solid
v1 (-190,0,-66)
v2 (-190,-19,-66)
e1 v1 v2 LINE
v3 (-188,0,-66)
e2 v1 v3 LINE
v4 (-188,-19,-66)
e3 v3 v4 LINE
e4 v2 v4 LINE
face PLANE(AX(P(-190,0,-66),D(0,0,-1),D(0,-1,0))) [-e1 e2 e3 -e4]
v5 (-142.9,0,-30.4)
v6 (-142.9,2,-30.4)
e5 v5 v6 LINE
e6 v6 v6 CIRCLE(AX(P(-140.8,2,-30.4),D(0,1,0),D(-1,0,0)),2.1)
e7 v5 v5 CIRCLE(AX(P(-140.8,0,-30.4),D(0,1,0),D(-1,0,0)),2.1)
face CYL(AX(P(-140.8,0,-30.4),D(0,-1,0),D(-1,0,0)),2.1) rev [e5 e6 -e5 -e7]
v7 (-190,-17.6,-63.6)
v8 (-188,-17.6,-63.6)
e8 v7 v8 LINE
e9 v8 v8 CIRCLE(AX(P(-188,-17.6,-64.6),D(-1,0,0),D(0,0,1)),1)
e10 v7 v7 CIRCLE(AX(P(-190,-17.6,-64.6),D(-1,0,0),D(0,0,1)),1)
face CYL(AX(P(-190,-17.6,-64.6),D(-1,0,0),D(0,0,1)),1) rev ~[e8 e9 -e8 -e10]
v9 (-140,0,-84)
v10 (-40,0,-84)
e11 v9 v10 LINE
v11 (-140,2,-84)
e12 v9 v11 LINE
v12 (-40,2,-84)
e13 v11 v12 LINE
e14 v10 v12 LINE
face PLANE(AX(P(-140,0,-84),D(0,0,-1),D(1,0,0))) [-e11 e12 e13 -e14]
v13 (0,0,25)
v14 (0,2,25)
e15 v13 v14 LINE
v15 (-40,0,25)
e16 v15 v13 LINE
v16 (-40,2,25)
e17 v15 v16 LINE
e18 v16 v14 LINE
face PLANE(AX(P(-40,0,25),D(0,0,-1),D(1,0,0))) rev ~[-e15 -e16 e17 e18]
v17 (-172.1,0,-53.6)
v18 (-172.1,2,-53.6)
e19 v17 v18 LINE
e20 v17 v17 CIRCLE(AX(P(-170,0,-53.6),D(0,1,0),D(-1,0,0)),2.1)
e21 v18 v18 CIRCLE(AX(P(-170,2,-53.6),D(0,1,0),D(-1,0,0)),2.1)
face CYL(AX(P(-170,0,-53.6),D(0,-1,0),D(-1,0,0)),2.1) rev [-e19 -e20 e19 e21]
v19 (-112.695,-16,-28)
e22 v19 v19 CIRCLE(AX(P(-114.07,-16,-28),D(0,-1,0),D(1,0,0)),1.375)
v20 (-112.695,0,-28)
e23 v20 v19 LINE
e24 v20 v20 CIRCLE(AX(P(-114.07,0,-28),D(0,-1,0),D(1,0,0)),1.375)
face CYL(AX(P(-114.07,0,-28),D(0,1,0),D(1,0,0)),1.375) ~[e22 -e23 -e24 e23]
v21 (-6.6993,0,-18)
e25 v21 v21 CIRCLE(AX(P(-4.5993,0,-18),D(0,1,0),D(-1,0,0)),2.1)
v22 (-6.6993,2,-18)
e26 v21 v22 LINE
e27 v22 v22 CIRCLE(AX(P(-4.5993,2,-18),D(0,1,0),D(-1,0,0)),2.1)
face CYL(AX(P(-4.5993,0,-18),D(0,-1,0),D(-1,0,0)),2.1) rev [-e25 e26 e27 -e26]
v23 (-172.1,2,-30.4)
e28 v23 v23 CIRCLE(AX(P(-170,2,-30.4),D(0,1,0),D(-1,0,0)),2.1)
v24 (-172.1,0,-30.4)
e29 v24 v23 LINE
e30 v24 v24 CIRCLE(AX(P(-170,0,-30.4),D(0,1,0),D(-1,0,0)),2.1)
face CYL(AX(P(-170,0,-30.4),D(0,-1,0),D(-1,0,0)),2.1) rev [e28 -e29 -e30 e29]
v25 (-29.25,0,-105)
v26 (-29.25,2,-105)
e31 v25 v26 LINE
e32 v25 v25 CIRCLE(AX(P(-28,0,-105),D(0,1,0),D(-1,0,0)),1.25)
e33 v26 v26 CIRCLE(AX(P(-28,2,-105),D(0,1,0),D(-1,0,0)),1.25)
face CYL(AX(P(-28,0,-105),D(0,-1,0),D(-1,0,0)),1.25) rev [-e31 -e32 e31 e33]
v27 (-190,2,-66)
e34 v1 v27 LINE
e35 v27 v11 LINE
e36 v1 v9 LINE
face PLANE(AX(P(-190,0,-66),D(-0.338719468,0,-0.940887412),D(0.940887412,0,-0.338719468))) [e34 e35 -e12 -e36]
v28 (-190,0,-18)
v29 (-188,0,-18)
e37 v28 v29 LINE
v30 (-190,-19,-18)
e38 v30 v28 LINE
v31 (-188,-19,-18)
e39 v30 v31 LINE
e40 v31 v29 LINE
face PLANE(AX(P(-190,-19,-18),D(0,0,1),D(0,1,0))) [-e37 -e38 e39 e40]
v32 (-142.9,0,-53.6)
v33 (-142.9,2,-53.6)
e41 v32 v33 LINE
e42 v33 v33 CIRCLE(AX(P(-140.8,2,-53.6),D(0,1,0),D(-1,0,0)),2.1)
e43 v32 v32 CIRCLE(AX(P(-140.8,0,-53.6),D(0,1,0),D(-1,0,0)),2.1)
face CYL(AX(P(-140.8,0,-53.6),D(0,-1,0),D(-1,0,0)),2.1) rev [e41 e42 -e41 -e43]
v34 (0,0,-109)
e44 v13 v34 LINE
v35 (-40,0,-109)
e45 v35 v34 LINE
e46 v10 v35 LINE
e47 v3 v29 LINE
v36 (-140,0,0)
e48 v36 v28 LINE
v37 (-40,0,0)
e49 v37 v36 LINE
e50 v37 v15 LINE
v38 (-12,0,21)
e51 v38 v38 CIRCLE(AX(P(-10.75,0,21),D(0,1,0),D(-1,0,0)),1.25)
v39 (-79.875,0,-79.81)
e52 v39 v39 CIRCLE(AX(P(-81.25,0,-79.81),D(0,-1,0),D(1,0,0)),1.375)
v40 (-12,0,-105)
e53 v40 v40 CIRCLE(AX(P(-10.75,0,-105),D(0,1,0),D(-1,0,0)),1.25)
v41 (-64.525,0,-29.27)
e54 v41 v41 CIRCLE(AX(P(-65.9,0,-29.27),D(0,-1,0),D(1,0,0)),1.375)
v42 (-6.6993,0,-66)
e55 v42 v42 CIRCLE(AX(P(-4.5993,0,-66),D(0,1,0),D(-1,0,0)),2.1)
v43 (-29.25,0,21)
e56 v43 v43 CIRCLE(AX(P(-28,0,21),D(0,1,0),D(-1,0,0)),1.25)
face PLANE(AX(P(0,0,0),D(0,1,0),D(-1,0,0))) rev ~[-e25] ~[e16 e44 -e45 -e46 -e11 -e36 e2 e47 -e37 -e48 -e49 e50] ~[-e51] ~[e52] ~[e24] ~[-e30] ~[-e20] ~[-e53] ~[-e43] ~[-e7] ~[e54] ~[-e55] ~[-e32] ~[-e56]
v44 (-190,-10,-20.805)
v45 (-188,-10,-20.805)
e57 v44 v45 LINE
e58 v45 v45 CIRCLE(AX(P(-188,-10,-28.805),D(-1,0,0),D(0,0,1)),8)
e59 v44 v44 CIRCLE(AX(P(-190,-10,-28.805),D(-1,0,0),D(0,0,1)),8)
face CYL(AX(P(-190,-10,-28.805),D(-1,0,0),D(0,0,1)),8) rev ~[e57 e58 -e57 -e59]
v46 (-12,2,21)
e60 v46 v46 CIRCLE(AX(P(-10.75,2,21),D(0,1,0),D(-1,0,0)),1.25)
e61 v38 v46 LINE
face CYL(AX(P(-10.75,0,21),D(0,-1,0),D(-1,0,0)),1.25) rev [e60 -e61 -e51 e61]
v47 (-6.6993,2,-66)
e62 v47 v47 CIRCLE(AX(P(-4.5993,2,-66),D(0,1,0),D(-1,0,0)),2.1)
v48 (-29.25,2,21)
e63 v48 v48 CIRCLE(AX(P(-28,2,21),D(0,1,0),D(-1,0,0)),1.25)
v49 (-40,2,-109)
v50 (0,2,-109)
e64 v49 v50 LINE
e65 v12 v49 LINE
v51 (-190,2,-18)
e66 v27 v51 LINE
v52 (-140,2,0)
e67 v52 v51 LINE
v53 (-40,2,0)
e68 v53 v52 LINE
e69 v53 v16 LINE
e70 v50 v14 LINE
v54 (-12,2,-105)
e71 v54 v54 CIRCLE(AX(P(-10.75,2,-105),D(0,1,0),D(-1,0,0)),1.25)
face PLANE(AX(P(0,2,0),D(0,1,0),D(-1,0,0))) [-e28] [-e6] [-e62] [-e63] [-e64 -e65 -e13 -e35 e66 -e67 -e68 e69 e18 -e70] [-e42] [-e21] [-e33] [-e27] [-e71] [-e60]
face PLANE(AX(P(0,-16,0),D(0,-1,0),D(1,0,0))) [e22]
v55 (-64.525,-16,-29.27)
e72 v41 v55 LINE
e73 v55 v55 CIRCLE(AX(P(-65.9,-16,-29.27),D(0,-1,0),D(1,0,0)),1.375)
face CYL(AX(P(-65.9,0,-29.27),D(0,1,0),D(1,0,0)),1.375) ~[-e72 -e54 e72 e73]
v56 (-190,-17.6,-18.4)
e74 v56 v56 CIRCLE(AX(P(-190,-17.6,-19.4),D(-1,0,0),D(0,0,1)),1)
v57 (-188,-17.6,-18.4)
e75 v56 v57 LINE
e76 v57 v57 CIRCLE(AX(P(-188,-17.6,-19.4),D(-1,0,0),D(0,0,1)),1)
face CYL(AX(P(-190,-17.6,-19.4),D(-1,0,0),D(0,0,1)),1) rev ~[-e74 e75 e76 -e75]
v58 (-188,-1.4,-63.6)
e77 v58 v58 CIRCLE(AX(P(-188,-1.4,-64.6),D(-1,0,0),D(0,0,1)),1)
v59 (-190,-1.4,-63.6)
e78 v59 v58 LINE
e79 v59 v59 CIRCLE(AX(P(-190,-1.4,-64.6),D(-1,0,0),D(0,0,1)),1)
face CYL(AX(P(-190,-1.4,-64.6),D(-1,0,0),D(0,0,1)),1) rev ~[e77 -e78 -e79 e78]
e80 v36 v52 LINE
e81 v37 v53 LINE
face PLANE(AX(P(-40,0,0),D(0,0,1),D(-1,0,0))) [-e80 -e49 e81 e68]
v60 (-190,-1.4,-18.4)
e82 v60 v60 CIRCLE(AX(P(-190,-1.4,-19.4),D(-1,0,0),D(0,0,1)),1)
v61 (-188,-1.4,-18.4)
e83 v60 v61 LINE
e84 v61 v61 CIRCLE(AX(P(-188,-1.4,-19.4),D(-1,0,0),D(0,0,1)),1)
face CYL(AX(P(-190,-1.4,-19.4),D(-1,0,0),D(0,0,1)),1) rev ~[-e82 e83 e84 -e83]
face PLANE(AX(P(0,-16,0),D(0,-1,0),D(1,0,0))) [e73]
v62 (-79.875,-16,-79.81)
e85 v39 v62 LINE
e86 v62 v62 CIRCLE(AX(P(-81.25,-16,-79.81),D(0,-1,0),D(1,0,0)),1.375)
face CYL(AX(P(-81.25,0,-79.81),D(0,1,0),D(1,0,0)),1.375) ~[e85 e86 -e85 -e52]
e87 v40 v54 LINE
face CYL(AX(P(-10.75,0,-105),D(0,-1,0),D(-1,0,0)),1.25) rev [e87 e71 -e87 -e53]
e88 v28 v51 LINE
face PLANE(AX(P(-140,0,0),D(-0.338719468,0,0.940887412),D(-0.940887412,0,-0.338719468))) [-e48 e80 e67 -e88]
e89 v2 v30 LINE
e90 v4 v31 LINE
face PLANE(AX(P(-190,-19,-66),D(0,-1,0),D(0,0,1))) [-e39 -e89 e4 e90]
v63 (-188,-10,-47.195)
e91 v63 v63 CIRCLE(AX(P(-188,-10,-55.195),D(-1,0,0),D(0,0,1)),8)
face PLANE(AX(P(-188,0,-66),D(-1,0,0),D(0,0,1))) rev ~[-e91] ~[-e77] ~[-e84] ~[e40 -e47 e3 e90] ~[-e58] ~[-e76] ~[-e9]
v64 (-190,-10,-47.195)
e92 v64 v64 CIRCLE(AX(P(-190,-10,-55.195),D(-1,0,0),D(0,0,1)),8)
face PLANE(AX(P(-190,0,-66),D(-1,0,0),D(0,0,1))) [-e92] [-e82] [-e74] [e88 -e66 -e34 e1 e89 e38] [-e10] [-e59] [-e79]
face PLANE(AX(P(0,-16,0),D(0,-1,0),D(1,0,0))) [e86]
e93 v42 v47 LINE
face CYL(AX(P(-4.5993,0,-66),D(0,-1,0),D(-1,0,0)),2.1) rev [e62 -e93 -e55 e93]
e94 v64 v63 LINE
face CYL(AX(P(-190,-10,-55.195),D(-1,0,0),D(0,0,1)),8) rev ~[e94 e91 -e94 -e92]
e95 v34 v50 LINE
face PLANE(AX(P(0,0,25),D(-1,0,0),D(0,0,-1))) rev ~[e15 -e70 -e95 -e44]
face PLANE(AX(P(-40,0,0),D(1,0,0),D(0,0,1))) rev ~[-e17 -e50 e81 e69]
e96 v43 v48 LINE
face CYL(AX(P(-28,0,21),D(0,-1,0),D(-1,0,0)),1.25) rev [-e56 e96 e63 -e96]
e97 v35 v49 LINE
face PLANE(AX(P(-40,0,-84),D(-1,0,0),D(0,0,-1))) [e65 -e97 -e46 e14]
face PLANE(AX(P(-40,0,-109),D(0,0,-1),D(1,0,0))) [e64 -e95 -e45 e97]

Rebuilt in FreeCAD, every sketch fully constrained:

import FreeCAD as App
import Part
import Sketcher
from FreeCAD import Vector
Q = App.Units.Quantity


def add_polygon(sketch, points):
    """Adds a closed chain of lines whose ends are joined by coincident constraints."""
    first, n = sketch.GeometryCount, len(points)
    for a, b in zip(points, points[1:] + points[:1]):
        sketch.addGeometry(Part.LineSegment(App.Vector(*a, 0), App.Vector(*b, 0)), False)
    for i in range(n):
        sketch.addConstraint(Sketcher.Constraint("Coincident", first + i, 2, first + (i + 1) % n, 1))

doc = App.newDocument("Part")
body = doc.addObject("PartDesign::Body", "Body")

# Sketch on XZ plane
sketch1 = doc.addObject("Sketcher::SketchObject", "Sketch")
body.addObject(sketch1)
sketch1.AttachmentSupport = (doc.XZ_Plane, [""])
sketch1.MapMode = "FlatFace"
add_polygon(sketch1, [(0, 25), (0, -109), (-40, -109), (-40, -84), (-140, -84), (-190, -66), (-190, -18), (-140, 0), (-40, 0), (-40, 25)])  # lines 0-9
sketch1.addGeometry(Part.Circle(Vector(-10.75, 21, 0), Vector(0, 0, 1), 1.25), False)  # 10
sketch1.addGeometry(Part.Circle(Vector(-28, 21, 0), Vector(0, 0, 1), 1.25), False)  # 11
sketch1.addGeometry(Part.Circle(Vector(-170, -30.4, 0), Vector(0, 0, 1), 2.1), False)  # 12
sketch1.addGeometry(Part.Circle(Vector(-4.5993, -66, 0), Vector(0, 0, 1), 2.1), False)  # 13
sketch1.addGeometry(Part.Circle(Vector(-140.8, -53.6, 0), Vector(0, 0, 1), 2.1), False)  # 14
sketch1.addGeometry(Part.Circle(Vector(-170, -53.6, 0), Vector(0, 0, 1), 2.1), False)  # 15
sketch1.addGeometry(Part.Circle(Vector(-4.5993, -18, 0), Vector(0, 0, 1), 2.1), False)  # 16
sketch1.addGeometry(Part.Circle(Vector(-140.8, -30.4, 0), Vector(0, 0, 1), 2.1), False)  # 17
sketch1.addGeometry(Part.Circle(Vector(-28, -105, 0), Vector(0, 0, 1), 1.25), False)  # 18
sketch1.addGeometry(Part.Circle(Vector(-10.75, -105, 0), Vector(0, 0, 1), 1.25), False)  # 19
sketch1.addConstraint(Sketcher.Constraint("Vertical", 0))
sketch1.addConstraint(Sketcher.Constraint("Horizontal", 1))
sketch1.addConstraint(Sketcher.Constraint("Vertical", 2))
sketch1.addConstraint(Sketcher.Constraint("Horizontal", 3))
sketch1.addConstraint(Sketcher.Constraint("Vertical", 5))
sketch1.addConstraint(Sketcher.Constraint("Horizontal", 7))
sketch1.addConstraint(Sketcher.Constraint("Vertical", 8))
sketch1.addConstraint(Sketcher.Constraint("Horizontal", 9))
sketch1.addConstraint(Sketcher.Constraint("Equal", 10, 11))
sketch1.addConstraint(Sketcher.Constraint("Equal", 12, 13))
sketch1.addConstraint(Sketcher.Constraint("Equal", 13, 14))
sketch1.addConstraint(Sketcher.Constraint("Equal", 14, 15))
sketch1.addConstraint(Sketcher.Constraint("Equal", 15, 16))
sketch1.addConstraint(Sketcher.Constraint("Equal", 16, 17))
sketch1.addConstraint(Sketcher.Constraint("Equal", 11, 18))
sketch1.addConstraint(Sketcher.Constraint("Equal", 18, 19))
sketch1.addConstraint(Sketcher.Constraint("PointOnObject", 0, 2, -2))
sketch1.addConstraint(Sketcher.Constraint("PointOnObject", 6, 2, -1))
sketch1.addConstraint(Sketcher.Constraint("Horizontal", 10, 3, 11, 3))
sketch1.addConstraint(Sketcher.Constraint("Horizontal", 14, 3, 15, 3))
sketch1.addConstraint(Sketcher.Constraint("Horizontal", 12, 3, 17, 3))
sketch1.addConstraint(Sketcher.Constraint("Horizontal", 18, 3, 19, 3))
sketch1.addConstraint(Sketcher.Constraint("Horizontal", 13, 3, 4, 2))
sketch1.addConstraint(Sketcher.Constraint("Horizontal", 16, 3, 5, 2))
sketch1.addConstraint(Sketcher.Constraint("Vertical", 12, 3, 15, 3))
sketch1.addConstraint(Sketcher.Constraint("Vertical", 13, 3, 16, 3))
sketch1.addConstraint(Sketcher.Constraint("Vertical", 14, 3, 17, 3))
sketch1.addConstraint(Sketcher.Constraint("Vertical", 11, 3, 18, 3))
sketch1.addConstraint(Sketcher.Constraint("Vertical", 10, 3, 19, 3))
sketch1.addConstraint(Sketcher.Constraint("Vertical", 3, 2, 6, 2))
sketch1.addConstraint(Sketcher.Constraint("Vertical", 2, 2, 7, 2))
sketch1.addConstraint(Sketcher.Constraint("Equal", 2, 8))
sketch1.addConstraint(Sketcher.Constraint("Equal", 4, 6))
sketch1.addConstraint(Sketcher.Constraint("Diameter", 10, Q("2.5 mm")))
sketch1.addConstraint(Sketcher.Constraint("Diameter", 12, Q("4.2 mm")))
sketch1.addConstraint(Sketcher.Constraint("DistanceX", 1, 2, 1, 1, Q("40 mm")))
sketch1.addConstraint(Sketcher.Constraint("DistanceY", 2, 1, 2, 2, Q("25 mm")))
sketch1.addConstraint(Sketcher.Constraint("DistanceY", 5, 1, 5, 2, Q("48 mm")))
sketch1.addConstraint(Sketcher.Constraint("DistanceX", 11, 3, -1, 1, Q("28 mm")))
sketch1.addConstraint(Sketcher.Constraint("DistanceY", 16, 3, -1, 1, Q("18 mm")))
sketch1.addConstraint(Sketcher.Constraint("DistanceX", 3, 2, -1, 1, Q("140 mm")))
sketch1.addConstraint(Sketcher.Constraint("DistanceY", 0, 2, 19, 3, Q("4 mm")))
sketch1.addConstraint(Sketcher.Constraint("DistanceX", 4, 2, 15, 3, Q("20 mm")))
sketch1.addConstraint(Sketcher.Constraint("DistanceX", 4, 2, 3, 2, Q("50 mm")))
sketch1.addConstraint(Sketcher.Constraint("DistanceY", 11, 3, 8, 2, Q("4 mm")))
sketch1.addConstraint(Sketcher.Constraint("DistanceX", 12, 3, 14, 3, Q("29.2 mm")))
sketch1.addConstraint(Sketcher.Constraint("DistanceY", 14, 3, 12, 3, Q("23.2 mm")))
sketch1.addConstraint(Sketcher.Constraint("DistanceX", 11, 3, 10, 3, Q("17.25 mm")))
sketch1.addConstraint(Sketcher.Constraint("DistanceY", 12, 3, -1, 1, Q("30.4 mm")))
sketch1.addConstraint(Sketcher.Constraint("DistanceX", 13, 3, -1, 1, Q("4.5993 mm")))
pad1 = doc.addObject("PartDesign::Pad", "Pad")
body.addObject(pad1)
pad1.Profile = sketch1
pad1.Length = 2
pad1.Reversed = True

# Sketch on YZ plane
sketch2 = doc.addObject("Sketcher::SketchObject", "Sketch001")
body.addObject(sketch2)
sketch2.AttachmentSupport = (doc.YZ_Plane, [""])
sketch2.MapMode = "FlatFace"
sketch2.AttachmentOffset = App.Placement(Vector(0, 0, -190), App.Rotation())
add_polygon(sketch2, [(0, -18), (0, -66), (-19, -66), (-19, -18)])  # lines 0-3
sketch2.addGeometry(Part.Circle(Vector(-17.6, -64.6, 0), Vector(0, 0, 1), 1), False)  # 4
sketch2.addGeometry(Part.Circle(Vector(-10, -55.195, 0), Vector(0, 0, 1), 8), False)  # 5
sketch2.addGeometry(Part.Circle(Vector(-17.6, -19.4, 0), Vector(0, 0, 1), 1), False)  # 6
sketch2.addGeometry(Part.Circle(Vector(-10, -28.805, 0), Vector(0, 0, 1), 8), False)  # 7
sketch2.addGeometry(Part.Circle(Vector(-1.4, -64.6, 0), Vector(0, 0, 1), 1), False)  # 8
sketch2.addGeometry(Part.Circle(Vector(-1.4, -19.4, 0), Vector(0, 0, 1), 1), False)  # 9
sketch2.addConstraint(Sketcher.Constraint("Vertical", 0))
sketch2.addConstraint(Sketcher.Constraint("Horizontal", 1))
sketch2.addConstraint(Sketcher.Constraint("Vertical", 2))
sketch2.addConstraint(Sketcher.Constraint("Horizontal", 3))
sketch2.addConstraint(Sketcher.Constraint("Equal", 4, 6))
sketch2.addConstraint(Sketcher.Constraint("Equal", 5, 7))
sketch2.addConstraint(Sketcher.Constraint("Equal", 6, 8))
sketch2.addConstraint(Sketcher.Constraint("Equal", 8, 9))
sketch2.addConstraint(Sketcher.Constraint("PointOnObject", 0, 2, -2))
sketch2.addConstraint(Sketcher.Constraint("Horizontal", 4, 3, 8, 3))
sketch2.addConstraint(Sketcher.Constraint("Horizontal", 6, 3, 9, 3))
sketch2.addConstraint(Sketcher.Constraint("Vertical", 4, 3, 6, 3))
sketch2.addConstraint(Sketcher.Constraint("Vertical", 5, 3, 7, 3))
sketch2.addConstraint(Sketcher.Constraint("Vertical", 8, 3, 9, 3))
sketch2.addConstraint(Sketcher.Constraint("Diameter", 4, Q("2 mm")))
sketch2.addConstraint(Sketcher.Constraint("Diameter", 5, Q("16 mm")))
sketch2.addConstraint(Sketcher.Constraint("DistanceY", 0, 2, 0, 1, Q("48 mm")))
sketch2.addConstraint(Sketcher.Constraint("DistanceX", 5, 3, -1, 1, Q("10 mm")))
sketch2.addConstraint(Sketcher.Constraint("DistanceX", 8, 3, -1, 1, Q("1.4 mm")))
sketch2.addConstraint(Sketcher.Constraint("DistanceY", 0, 2, 8, 3, Q("1.4 mm")))
sketch2.addConstraint(Sketcher.Constraint("DistanceX", 1, 2, 4, 3, Q("1.4 mm")))
sketch2.addConstraint(Sketcher.Constraint("DistanceY", 6, 3, 2, 2, Q("1.4 mm")))
sketch2.addConstraint(Sketcher.Constraint("DistanceX", 1, 2, 1, 1, Q("19 mm")))
sketch2.addConstraint(Sketcher.Constraint("DistanceY", 5, 3, 7, 3, Q("26.39 mm")))
sketch2.addConstraint(Sketcher.Constraint("DistanceY", 0, 2, -1, 1, Q("66 mm")))
sketch2.addConstraint(Sketcher.Constraint("DistanceY", 0, 2, 5, 3, Q("10.805 mm")))
pad2 = doc.addObject("PartDesign::Pad", "Pad001")
body.addObject(pad2)
pad2.Profile = sketch2
pad2.Length = 2

# Sketch on XZ plane
sketch3 = doc.addObject("Sketcher::SketchObject", "Sketch002")
body.addObject(sketch3)
sketch3.AttachmentSupport = (doc.XZ_Plane, [""])
sketch3.MapMode = "FlatFace"
sketch3.addGeometry(Part.Circle(Vector(-65.9, -29.27, 0), Vector(0, 0, 1), 1.375), False)
sketch3.addGeometry(Part.Circle(Vector(-114.07, -28, 0), Vector(0, 0, 1), 1.375), False)
sketch3.addGeometry(Part.Circle(Vector(-81.25, -79.81, 0), Vector(0, 0, 1), 1.375), False)
sketch3.addConstraint(Sketcher.Constraint("Equal", 0, 1))
sketch3.addConstraint(Sketcher.Constraint("Equal", 1, 2))
sketch3.addConstraint(Sketcher.Constraint("Diameter", 0, Q("2.75 mm")))
sketch3.addConstraint(Sketcher.Constraint("DistanceY", 1, 3, -1, 1, Q("28 mm")))
sketch3.addConstraint(Sketcher.Constraint("DistanceY", 0, 3, -1, 1, Q("29.27 mm")))
sketch3.addConstraint(Sketcher.Constraint("DistanceY", 2, 3, -1, 1, Q("79.81 mm")))
sketch3.addConstraint(Sketcher.Constraint("DistanceX", 0, 3, -1, 1, Q("65.9 mm")))
sketch3.addConstraint(Sketcher.Constraint("DistanceX", 1, 3, -1, 1, Q("114.07 mm")))
sketch3.addConstraint(Sketcher.Constraint("DistanceX", 2, 3, -1, 1, Q("81.25 mm")))
pad3 = doc.addObject("PartDesign::Pad", "Pad002")
body.addObject(pad3)
pad3.Profile = sketch3
pad3.Length = 16

doc.recompute()
